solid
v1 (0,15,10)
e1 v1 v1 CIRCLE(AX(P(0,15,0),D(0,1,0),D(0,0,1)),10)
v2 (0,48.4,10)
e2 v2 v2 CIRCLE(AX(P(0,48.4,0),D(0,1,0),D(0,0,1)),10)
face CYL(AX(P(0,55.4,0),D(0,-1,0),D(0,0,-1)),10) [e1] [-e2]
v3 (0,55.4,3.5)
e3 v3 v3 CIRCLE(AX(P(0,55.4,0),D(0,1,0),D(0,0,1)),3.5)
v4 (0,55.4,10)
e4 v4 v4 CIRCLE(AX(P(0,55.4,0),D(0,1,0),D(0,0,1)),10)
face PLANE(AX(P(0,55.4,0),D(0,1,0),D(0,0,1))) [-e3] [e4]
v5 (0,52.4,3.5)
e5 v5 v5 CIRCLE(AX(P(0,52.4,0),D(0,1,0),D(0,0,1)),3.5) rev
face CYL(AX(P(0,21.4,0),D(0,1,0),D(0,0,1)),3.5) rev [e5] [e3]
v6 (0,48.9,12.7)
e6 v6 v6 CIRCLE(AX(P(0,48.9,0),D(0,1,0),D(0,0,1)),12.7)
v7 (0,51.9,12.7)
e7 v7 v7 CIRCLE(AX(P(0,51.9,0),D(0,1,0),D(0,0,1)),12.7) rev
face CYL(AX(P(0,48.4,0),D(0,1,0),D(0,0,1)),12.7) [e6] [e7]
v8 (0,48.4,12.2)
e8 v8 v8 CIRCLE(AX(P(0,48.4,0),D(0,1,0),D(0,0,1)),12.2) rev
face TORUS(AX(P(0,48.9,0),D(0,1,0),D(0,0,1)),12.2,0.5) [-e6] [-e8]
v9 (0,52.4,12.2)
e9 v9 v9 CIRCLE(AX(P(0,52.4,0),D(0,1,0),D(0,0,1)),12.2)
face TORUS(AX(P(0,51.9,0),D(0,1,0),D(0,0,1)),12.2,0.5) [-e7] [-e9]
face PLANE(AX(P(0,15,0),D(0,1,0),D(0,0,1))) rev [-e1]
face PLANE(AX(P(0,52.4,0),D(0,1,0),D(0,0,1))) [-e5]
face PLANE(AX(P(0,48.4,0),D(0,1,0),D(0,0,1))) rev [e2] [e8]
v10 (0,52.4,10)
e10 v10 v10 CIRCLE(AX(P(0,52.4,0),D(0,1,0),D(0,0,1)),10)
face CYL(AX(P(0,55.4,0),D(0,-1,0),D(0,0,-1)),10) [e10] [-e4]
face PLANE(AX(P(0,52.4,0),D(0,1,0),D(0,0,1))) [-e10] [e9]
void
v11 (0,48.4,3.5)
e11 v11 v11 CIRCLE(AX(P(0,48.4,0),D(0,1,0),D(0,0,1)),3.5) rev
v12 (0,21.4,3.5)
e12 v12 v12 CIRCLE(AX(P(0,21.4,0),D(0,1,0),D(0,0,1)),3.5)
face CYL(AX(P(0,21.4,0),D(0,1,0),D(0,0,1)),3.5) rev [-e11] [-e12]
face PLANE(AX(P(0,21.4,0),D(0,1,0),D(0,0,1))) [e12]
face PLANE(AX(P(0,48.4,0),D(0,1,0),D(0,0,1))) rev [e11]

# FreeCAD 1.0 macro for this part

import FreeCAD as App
import Part
import Sketcher


def edges_at(feature, points):
    """Names of the edges that pass closest to the given points."""
    edges = feature.Shape.Edges
    near = lambda p: min(range(len(edges)), key=lambda i: edges[i].distToShape(Part.Vertex(*p))[0])
    return sorted({f"Edge{near(p) + 1}" for p in points})

doc = App.newDocument("Part")
params = doc.addObject("Spreadsheet::Sheet", "Params")
for row, (alias, value) in enumerate([
    ("sketch1_diameter", "20 mm"),
    ("pad1_length", "40.4 mm"),
    ("sketch2_diameter", "7 mm"),
    ("pocket1_length", "34 mm"),
    ("sketch3_diameter", "25.4 mm"),
    ("pad2_length", "4 mm"),
    ("fillet_radius", "0.5 mm"),
], start=1):
    params.set(f"A{row}", alias)
    params.set(f"B{row}", "=" + value)
    params.setAlias(f"B{row}", alias)

body = doc.addObject("PartDesign::Body", "Body")

# Sketch on XZ plane
sketch1 = doc.addObject("Sketcher::SketchObject", "Sketch")
body.addObject(sketch1)
sketch1.AttachmentSupport = (doc.XZ_Plane, [""])
sketch1.MapMode = "FlatFace"
sketch1.AttachmentOffset = App.Placement(App.Vector(0, 0, -15), App.Rotation())
sketch1.addGeometry(Part.Circle(App.Vector(0, 0, 0), App.Vector(0, 0, 1), 10), False)
sketch1.addConstraint([
    Sketcher.Constraint("Coincident", 0, 3, -1, 1),
    Sketcher.Constraint("Diameter", 0, 20.0),
])
sketch1.setExpression("Constraints[1]", "Params.sketch1_diameter")
pad1 = doc.addObject("PartDesign::Pad", "Pad")
body.addObject(pad1)
pad1.Profile = sketch1
pad1.setExpression("Length", "Params.pad1_length")
pad1.Reversed = True

# Sketch on XZ plane
sketch2 = doc.addObject("Sketcher::SketchObject", "Sketch001")
body.addObject(sketch2)
sketch2.AttachmentSupport = (doc.XZ_Plane, [""])
sketch2.MapMode = "FlatFace"
sketch2.AttachmentOffset = App.Placement(App.Vector(0, 0, -55.4), App.Rotation())
sketch2.addGeometry(Part.Circle(App.Vector(0, 0, 0), App.Vector(0, 0, 1), 3.5), False)
sketch2.addConstraint([
    Sketcher.Constraint("Coincident", 0, 3, -1, 1),
    Sketcher.Constraint("Diameter", 0, 7.0),
])
sketch2.setExpression("Constraints[1]", "Params.sketch2_diameter")
pocket1 = doc.addObject("PartDesign::Pocket", "Pocket")
body.addObject(pocket1)
pocket1.Profile = sketch2
pocket1.setExpression("Length", "Params.pocket1_length")
pocket1.Reversed = True

# Sketch on XZ plane
sketch3 = doc.addObject("Sketcher::SketchObject", "Sketch002")
body.addObject(sketch3)
sketch3.AttachmentSupport = (doc.XZ_Plane, [""])
sketch3.MapMode = "FlatFace"
sketch3.AttachmentOffset = App.Placement(App.Vector(0, 0, -52.4), App.Rotation())
sketch3.addGeometry(Part.Circle(App.Vector(0, 0, 0), App.Vector(0, 0, 1), 13), False)
sketch3.addConstraint([
    Sketcher.Constraint("Coincident", 0, 3, -1, 1),
    Sketcher.Constraint("Diameter", 0, 25.4),
])
sketch3.setExpression("Constraints[1]", "Params.sketch3_diameter")
pad2 = doc.addObject("PartDesign::Pad", "Pad001")
body.addObject(pad2)
pad2.Profile = sketch3
pad2.setExpression("Length", "Params.pad2_length")
doc.recompute()

fillet = doc.addObject("PartDesign::Fillet", "Fillet")
body.addObject(fillet)
fillet.Base = (pad2, edges_at(pad2, [(0, 52.4, -12.7), (0, 48.4, -12.7)]))
fillet.setExpression("Radius", "Params.fillet_radius")

doc.recompute()
